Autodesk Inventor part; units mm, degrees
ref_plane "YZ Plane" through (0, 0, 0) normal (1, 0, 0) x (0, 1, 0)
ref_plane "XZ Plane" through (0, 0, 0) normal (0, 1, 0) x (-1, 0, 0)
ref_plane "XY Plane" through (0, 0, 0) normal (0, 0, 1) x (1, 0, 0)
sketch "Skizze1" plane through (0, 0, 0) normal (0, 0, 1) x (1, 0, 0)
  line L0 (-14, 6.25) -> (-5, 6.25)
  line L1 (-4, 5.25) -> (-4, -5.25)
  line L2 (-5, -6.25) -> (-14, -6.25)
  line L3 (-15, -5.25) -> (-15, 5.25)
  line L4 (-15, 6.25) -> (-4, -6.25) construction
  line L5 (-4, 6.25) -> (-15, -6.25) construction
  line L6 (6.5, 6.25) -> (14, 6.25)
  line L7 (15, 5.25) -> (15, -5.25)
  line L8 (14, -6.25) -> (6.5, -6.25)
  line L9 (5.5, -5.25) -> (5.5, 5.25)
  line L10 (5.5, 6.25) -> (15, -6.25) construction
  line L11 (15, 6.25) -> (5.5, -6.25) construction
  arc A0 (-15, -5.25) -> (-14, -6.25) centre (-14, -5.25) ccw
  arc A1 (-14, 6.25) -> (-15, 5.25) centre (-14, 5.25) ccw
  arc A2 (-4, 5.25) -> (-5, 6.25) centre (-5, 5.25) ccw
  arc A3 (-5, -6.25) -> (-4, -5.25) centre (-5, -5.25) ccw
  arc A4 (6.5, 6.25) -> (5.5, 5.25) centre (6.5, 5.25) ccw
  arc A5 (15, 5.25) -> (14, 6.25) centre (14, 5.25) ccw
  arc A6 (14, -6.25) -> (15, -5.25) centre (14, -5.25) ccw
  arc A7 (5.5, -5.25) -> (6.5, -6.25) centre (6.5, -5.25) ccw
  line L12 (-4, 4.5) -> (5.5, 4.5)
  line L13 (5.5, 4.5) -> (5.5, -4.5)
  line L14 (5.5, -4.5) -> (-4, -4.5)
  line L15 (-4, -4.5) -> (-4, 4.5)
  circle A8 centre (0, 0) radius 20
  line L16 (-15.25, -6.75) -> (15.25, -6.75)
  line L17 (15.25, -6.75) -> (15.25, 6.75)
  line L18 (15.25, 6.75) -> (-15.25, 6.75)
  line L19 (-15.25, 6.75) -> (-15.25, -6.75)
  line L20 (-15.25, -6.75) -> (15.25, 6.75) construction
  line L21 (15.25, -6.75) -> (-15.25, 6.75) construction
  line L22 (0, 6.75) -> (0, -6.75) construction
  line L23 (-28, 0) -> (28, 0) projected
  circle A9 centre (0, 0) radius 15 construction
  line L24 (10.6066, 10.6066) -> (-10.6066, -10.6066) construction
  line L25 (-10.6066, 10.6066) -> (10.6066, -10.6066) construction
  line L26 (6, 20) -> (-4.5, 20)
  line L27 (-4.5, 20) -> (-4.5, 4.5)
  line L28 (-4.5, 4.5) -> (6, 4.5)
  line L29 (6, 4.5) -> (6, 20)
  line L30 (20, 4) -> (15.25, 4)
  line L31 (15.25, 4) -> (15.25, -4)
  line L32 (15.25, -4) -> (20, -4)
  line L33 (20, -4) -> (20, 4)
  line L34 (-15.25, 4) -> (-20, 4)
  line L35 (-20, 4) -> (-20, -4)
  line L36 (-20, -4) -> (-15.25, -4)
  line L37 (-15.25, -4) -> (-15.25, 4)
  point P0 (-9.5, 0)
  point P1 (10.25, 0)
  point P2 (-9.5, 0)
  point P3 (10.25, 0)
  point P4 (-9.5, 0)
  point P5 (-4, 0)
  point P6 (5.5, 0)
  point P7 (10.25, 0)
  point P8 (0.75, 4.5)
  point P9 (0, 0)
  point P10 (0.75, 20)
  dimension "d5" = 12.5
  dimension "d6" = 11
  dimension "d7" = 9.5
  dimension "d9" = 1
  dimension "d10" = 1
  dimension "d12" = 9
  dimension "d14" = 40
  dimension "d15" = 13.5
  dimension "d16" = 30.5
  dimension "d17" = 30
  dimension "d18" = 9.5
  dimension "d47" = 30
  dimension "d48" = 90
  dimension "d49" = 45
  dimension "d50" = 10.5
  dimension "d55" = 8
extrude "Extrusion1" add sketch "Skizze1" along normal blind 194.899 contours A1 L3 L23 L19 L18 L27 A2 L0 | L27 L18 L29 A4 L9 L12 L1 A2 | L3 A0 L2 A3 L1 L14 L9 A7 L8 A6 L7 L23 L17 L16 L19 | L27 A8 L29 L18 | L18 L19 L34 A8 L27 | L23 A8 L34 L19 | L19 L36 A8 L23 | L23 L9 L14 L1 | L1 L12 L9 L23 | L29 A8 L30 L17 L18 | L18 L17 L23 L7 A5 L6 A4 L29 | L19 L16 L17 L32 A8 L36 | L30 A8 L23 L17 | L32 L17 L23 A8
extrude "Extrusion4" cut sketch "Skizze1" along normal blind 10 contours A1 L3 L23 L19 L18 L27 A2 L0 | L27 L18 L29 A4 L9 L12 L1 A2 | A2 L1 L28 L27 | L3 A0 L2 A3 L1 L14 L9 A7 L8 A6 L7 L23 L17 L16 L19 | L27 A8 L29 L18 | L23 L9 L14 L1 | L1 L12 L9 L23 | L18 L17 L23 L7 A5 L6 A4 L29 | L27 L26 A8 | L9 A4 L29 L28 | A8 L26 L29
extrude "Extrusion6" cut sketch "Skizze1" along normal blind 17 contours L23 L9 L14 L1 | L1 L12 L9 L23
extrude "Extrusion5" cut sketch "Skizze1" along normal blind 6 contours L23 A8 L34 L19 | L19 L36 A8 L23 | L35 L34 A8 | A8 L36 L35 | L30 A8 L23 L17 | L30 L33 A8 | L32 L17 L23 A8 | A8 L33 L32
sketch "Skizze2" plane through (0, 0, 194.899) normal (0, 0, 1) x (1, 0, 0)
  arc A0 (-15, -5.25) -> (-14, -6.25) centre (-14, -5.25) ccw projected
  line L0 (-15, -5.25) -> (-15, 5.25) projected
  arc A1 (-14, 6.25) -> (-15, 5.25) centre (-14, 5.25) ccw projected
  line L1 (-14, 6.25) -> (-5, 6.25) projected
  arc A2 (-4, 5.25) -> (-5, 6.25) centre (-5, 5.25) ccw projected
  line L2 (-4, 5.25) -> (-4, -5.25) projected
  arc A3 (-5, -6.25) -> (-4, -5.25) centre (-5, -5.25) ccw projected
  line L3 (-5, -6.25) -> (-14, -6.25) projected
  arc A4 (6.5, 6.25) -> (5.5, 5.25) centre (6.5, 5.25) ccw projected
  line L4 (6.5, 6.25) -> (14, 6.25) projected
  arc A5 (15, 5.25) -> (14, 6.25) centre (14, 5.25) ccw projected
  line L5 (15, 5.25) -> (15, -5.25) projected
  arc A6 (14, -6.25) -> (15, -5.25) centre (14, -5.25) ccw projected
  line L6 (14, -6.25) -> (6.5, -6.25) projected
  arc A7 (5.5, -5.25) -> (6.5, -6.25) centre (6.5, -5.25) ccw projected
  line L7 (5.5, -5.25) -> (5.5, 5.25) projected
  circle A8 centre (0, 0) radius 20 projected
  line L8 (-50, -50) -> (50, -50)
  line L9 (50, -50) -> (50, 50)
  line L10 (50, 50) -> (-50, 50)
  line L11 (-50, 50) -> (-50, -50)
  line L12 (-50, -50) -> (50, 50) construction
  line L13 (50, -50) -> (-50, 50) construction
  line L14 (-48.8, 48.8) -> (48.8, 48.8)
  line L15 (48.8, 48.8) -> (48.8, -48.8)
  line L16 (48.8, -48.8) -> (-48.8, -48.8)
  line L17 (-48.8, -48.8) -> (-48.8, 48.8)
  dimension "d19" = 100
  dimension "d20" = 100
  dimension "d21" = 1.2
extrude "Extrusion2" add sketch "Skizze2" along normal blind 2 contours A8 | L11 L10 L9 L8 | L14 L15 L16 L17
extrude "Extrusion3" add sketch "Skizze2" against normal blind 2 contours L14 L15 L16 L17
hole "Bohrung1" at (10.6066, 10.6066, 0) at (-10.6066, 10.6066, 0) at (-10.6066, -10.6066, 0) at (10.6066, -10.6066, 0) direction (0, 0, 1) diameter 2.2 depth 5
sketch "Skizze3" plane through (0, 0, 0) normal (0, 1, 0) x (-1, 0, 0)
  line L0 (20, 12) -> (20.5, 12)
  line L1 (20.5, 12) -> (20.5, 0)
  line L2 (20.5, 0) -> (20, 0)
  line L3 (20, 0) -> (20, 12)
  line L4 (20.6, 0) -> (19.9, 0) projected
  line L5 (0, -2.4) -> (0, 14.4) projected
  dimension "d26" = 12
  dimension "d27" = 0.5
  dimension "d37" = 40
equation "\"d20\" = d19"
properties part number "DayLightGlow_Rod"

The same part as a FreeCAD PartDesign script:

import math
import FreeCAD as App
import Part
import Sketcher

V = App.Vector


def add_polygon(sketch, points):
    """Adds a closed chain of lines whose ends are joined by coincident constraints."""
    first, n = sketch.GeometryCount, len(points)
    for a, b in zip(points, points[1:] + points[:1]):
        sketch.addGeometry(Part.LineSegment(App.Vector(*a, 0), App.Vector(*b, 0)), False)
    for i in range(n):
        sketch.addConstraint(Sketcher.Constraint("Coincident", first + i, 2, first + (i + 1) % n, 1))

doc = App.newDocument("Part")
body = doc.addObject("PartDesign::Body", "Body")

# Sketch on XY plane
sketch1 = body.newObject("Sketcher::SketchObject", "Sketch")
sketch1.AttachmentSupport = (doc.getObject("XY_Plane"), [""])
sketch1.MapMode = "FlatFace"
sketch1.addGeometry([
    Part.Circle(V(0, 0, 0), V(0, 0, 1), 20),  # 0
    Part.ArcOfCircle(Part.Circle(V(-14, 5.2, 0), V(0, 0, 1), 1), math.radians(90), math.radians(180)),  # 1
    Part.LineSegment(V(-14, 6.2, 0), V(-5, 6.2, 0)),  # 2
    Part.ArcOfCircle(Part.Circle(V(-5, 5.2, 0), V(0, 0, 1), 1), math.radians(0), math.radians(90)),  # 3
    Part.LineSegment(V(-4, 5.2, 0), V(-4, -5.2, 0)),  # 4
    Part.ArcOfCircle(Part.Circle(V(-5, -5.2, 0), V(0, 0, 1), 1), math.radians(-90), math.radians(0)),  # 5
    Part.LineSegment(V(-5, -6.2, 0), V(-14, -6.2, 0)),  # 6
    Part.ArcOfCircle(Part.Circle(V(-14, -5.2, 0), V(0, 0, 1), 1), math.radians(180), math.radians(270)),  # 7
    Part.LineSegment(V(-15, -5.2, 0), V(-15, 5.2, 0)),  # 8
    Part.LineSegment(V(5.5, -5.2, 0), V(5.5, 5.2, 0)),  # 9
    Part.ArcOfCircle(Part.Circle(V(6.5, 5.2, 0), V(0, 0, 1), 1), math.radians(90), math.radians(180)),  # 10
    Part.LineSegment(V(6.5, 6.2, 0), V(14, 6.2, 0)),  # 11
    Part.ArcOfCircle(Part.Circle(V(14, 5.2, 0), V(0, 0, 1), 1), math.radians(0), math.radians(90)),  # 12
    Part.LineSegment(V(15, 5.2, 0), V(15, -5.2, 0)),  # 13
    Part.ArcOfCircle(Part.Circle(V(14, -5.2, 0), V(0, 0, 1), 1), math.radians(-90), math.radians(0)),  # 14
    Part.LineSegment(V(14, -6.2, 0), V(6.5, -6.2, 0)),  # 15
    Part.ArcOfCircle(Part.Circle(V(6.5, -5.2, 0), V(0, 0, 1), 1), math.radians(180), math.radians(270)),  # 16
], False)
sketch1.addConstraint([
    Sketcher.Constraint("Tangent", 1, 1, 2, 1),
    Sketcher.Constraint("Tangent", 2, 2, 3, 2),
    Sketcher.Constraint("Tangent", 3, 1, 4, 1),
    Sketcher.Constraint("Tangent", 4, 2, 5, 2),
    Sketcher.Constraint("Tangent", 5, 1, 6, 1),
    Sketcher.Constraint("Tangent", 6, 2, 7, 2),
    Sketcher.Constraint("Tangent", 7, 1, 8, 1),
    Sketcher.Constraint("Tangent", 8, 2, 1, 2),
    Sketcher.Constraint("Tangent", 9, 2, 10, 2),
    Sketcher.Constraint("Tangent", 10, 1, 11, 1),
    Sketcher.Constraint("Tangent", 11, 2, 12, 2),
    Sketcher.Constraint("Tangent", 12, 1, 13, 1),
    Sketcher.Constraint("Tangent", 13, 2, 14, 2),
    Sketcher.Constraint("Tangent", 14, 1, 15, 1),
    Sketcher.Constraint("Tangent", 15, 2, 16, 2),
    Sketcher.Constraint("Tangent", 16, 1, 9, 1),
    Sketcher.Constraint("Horizontal", 2),
    Sketcher.Constraint("Vertical", 4),
    Sketcher.Constraint("Horizontal", 6),
    Sketcher.Constraint("Vertical", 8),
    Sketcher.Constraint("Vertical", 9),
    Sketcher.Constraint("Horizontal", 11),
    Sketcher.Constraint("Vertical", 13),
    Sketcher.Constraint("Horizontal", 15),
    Sketcher.Constraint("Coincident", 0, 3, -1, 1),
    Sketcher.Constraint("Equal", 1, 3),
    Sketcher.Constraint("Equal", 3, 5),
    Sketcher.Constraint("Equal", 5, 7),
    Sketcher.Constraint("Equal", 7, 10),
    Sketcher.Constraint("Equal", 10, 12),
    Sketcher.Constraint("Equal", 12, 14),
    Sketcher.Constraint("Equal", 14, 16),
    Sketcher.Constraint("Symmetric", 7, 3, 12, 3, -1, 1),
    Sketcher.Constraint("Horizontal", 3, 3, 10, 3),
    Sketcher.Constraint("Horizontal", 7, 3, 14, 3),
    Sketcher.Constraint("Diameter", 0, 40.0),
    Sketcher.Constraint("Radius", 1, 1.0),
    Sketcher.Constraint("DistanceX", 2, 1, 2, 2, 9.0),
    Sketcher.Constraint("DistanceY", 4, 2, 4, 1, 10.5),
    Sketcher.Constraint("DistanceX", 4, 2, 16, 3, 10.5),
    Sketcher.Constraint("DistanceX", 9, 2, 12, 1, 9.5),
])
pad1 = body.newObject("PartDesign::Pad", "Pad")
pad1.Profile = sketch1
pad1.Length = 194.899

# Sketch on XY plane
sketch2 = body.newObject("Sketcher::SketchObject", "Sketch001")
sketch2.AttachmentSupport = (doc.getObject("XY_Plane"), [""])
sketch2.MapMode = "FlatFace"
add_polygon(sketch2, [(-15.2, -6.8), (15.2, -6.8), (15.2, 6.8), (6, 6.8), (6, 20), (-4.5, 20), (-4.5, 6.8), (-15.2, 6.8)])  # lines 0-7
sketch2.addGeometry(Part.ArcOfCircle(Part.Circle(V(-14, 5.2, 0), V(0, 0, 1), 1), math.radians(90), math.radians(180)), False)  # 8
sketch2.addGeometry(Part.LineSegment(V(-14, 6.2, 0), V(-5, 6.2, 0)), False)  # 9
sketch2.addGeometry(Part.ArcOfCircle(Part.Circle(V(-5, 5.2, 0), V(0, 0, 1), 1), math.radians(60), math.radians(90)), False)  # 10
sketch2.addGeometry(Part.LineSegment(V(-4.5, 6.1, 0), V(-4.5, 4.5, 0)), False)  # 11
sketch2.addGeometry(Part.LineSegment(V(-4.5, 4.5, 0), V(-4, 4.5, 0)), False)  # 12
sketch2.addGeometry(Part.LineSegment(V(-4, 4.5, 0), V(-4, -5.2, 0)), False)  # 13
sketch2.addGeometry(Part.ArcOfCircle(Part.Circle(V(-5, -5.2, 0), V(0, 0, 1), 1), math.radians(-90), math.radians(0)), False)  # 14
sketch2.addGeometry(Part.LineSegment(V(-5, -6.2, 0), V(-14, -6.2, 0)), False)  # 15
sketch2.addGeometry(Part.ArcOfCircle(Part.Circle(V(-14, -5.2, 0), V(0, 0, 1), 1), math.radians(180), math.radians(270)), False)  # 16
sketch2.addGeometry(Part.LineSegment(V(-15, -5.2, 0), V(-15, 5.2, 0)), False)  # 17
sketch2.addGeometry(Part.LineSegment(V(5.5, -5.2, 0), V(5.5, 4.5, 0)), False)  # 18
sketch2.addGeometry(Part.LineSegment(V(5.5, 4.5, 0), V(6, 4.5, 0)), False)  # 19
sketch2.addGeometry(Part.LineSegment(V(6, 4.5, 0), V(6, 6.1, 0)), False)  # 20
sketch2.addGeometry(Part.ArcOfCircle(Part.Circle(V(6.5, 5.2, 0), V(0, 0, 1), 1), math.radians(90), math.radians(120)), False)  # 21
sketch2.addGeometry(Part.LineSegment(V(6.5, 6.2, 0), V(14, 6.2, 0)), False)  # 22
sketch2.addGeometry(Part.ArcOfCircle(Part.Circle(V(14, 5.2, 0), V(0, 0, 1), 1), math.radians(0), math.radians(90)), False)  # 23
sketch2.addGeometry(Part.LineSegment(V(15, 5.2, 0), V(15, -5.2, 0)), False)  # 24
sketch2.addGeometry(Part.ArcOfCircle(Part.Circle(V(14, -5.2, 0), V(0, 0, 1), 1), math.radians(-90), math.radians(0)), False)  # 25
sketch2.addGeometry(Part.LineSegment(V(14, -6.2, 0), V(6.5, -6.2, 0)), False)  # 26
sketch2.addGeometry(Part.ArcOfCircle(Part.Circle(V(6.5, -5.2, 0), V(0, 0, 1), 1), math.radians(180), math.radians(270)), False)  # 27
sketch2.addConstraint([
    Sketcher.Constraint("Tangent", 8, 1, 9, 1),
    Sketcher.Constraint("Tangent", 9, 2, 10, 2),
    Sketcher.Constraint("Coincident", 10, 1, 11, 1),
    Sketcher.Constraint("Coincident", 11, 2, 12, 1),
    Sketcher.Constraint("Coincident", 12, 2, 13, 1),
    Sketcher.Constraint("Tangent", 13, 2, 14, 2),
    Sketcher.Constraint("Tangent", 14, 1, 15, 1),
    Sketcher.Constraint("Tangent", 15, 2, 16, 2),
    Sketcher.Constraint("Tangent", 16, 1, 17, 1),
    Sketcher.Constraint("Tangent", 17, 2, 8, 2),
    Sketcher.Constraint("Coincident", 18, 2, 19, 1),
    Sketcher.Constraint("Coincident", 19, 2, 20, 1),
    Sketcher.Constraint("Coincident", 20, 2, 21, 2),
    Sketcher.Constraint("Tangent", 21, 1, 22, 1),
    Sketcher.Constraint("Tangent", 22, 2, 23, 2),
    Sketcher.Constraint("Tangent", 23, 1, 24, 1),
    Sketcher.Constraint("Tangent", 24, 2, 25, 2),
    Sketcher.Constraint("Tangent", 25, 1, 26, 1),
    Sketcher.Constraint("Tangent", 26, 2, 27, 2),
    Sketcher.Constraint("Tangent", 27, 1, 18, 1),
    Sketcher.Constraint("Horizontal", 0),
    Sketcher.Constraint("Vertical", 1),
    Sketcher.Constraint("Horizontal", 2),
    Sketcher.Constraint("Vertical", 3),
    Sketcher.Constraint("Horizontal", 4),
    Sketcher.Constraint("Vertical", 5),
    Sketcher.Constraint("Horizontal", 6),
    Sketcher.Constraint("Vertical", 7),
    Sketcher.Constraint("Horizontal", 9),
    Sketcher.Constraint("Vertical", 11),
    Sketcher.Constraint("Horizontal", 12),
    Sketcher.Constraint("Vertical", 13),
    Sketcher.Constraint("Horizontal", 15),
    Sketcher.Constraint("Vertical", 17),
    Sketcher.Constraint("Vertical", 18),
    Sketcher.Constraint("Horizontal", 19),
    Sketcher.Constraint("Vertical", 20),
    Sketcher.Constraint("Horizontal", 22),
    Sketcher.Constraint("Vertical", 24),
    Sketcher.Constraint("Horizontal", 26),
    Sketcher.Constraint("Equal", 8, 10),
    Sketcher.Constraint("Equal", 10, 14),
    Sketcher.Constraint("Equal", 14, 16),
    Sketcher.Constraint("Equal", 16, 21),
    Sketcher.Constraint("Equal", 21, 23),
    Sketcher.Constraint("Equal", 23, 25),
    Sketcher.Constraint("Equal", 25, 27),
    Sketcher.Constraint("Symmetric", 16, 3, 23, 3, -1, 1),
    Sketcher.Constraint("Symmetric", 0, 2, 6, 2, -1, 1),
    Sketcher.Constraint("Symmetric", 10, 3, 14, 3, -1),
    Sketcher.Constraint("Symmetric", 21, 3, 27, 3, -1),
    Sketcher.Constraint("Horizontal", 2, 2, 5, 2),
    Sketcher.Constraint("Horizontal", 12, 2, 18, 2),
    Sketcher.Constraint("Horizontal", 10, 1, 20, 2),
    Sketcher.Constraint("Vertical", 5, 2, 10, 1),
    Sketcher.Constraint("Vertical", 3, 2, 19, 2),
    Sketcher.Constraint("Equal", 4, 17),
    Sketcher.Constraint("Radius", 8, 1.0),
    Sketcher.Constraint("DistanceX", 9, 1, 9, 2, 9.0),
    Sketcher.Constraint("DistanceX", 0, 1, 0, 2, 30.5),
    Sketcher.Constraint("DistanceX", 4, 2, 4, 1, 10.5),
    Sketcher.Constraint("DistanceY", 1, 1, 1, 2, 13.5),
    Sketcher.Constraint("DistanceX", 2, 2, 23, 3, 8.0),
    Sketcher.Constraint("DistanceX", 10, 3, 2, 2, 11.0),
    Sketcher.Constraint("DistanceY", -1, 1, 3, 2, 20.0),
    Sketcher.Constraint("DistanceY", 13, 2, 13, 1, 9.75),
])
pocket1 = body.newObject("PartDesign::Pocket", "Pocket")
pocket1.Profile = sketch2
pocket1.Length = 10
pocket1.Reversed = True

# Sketch on XY plane
sketch3 = body.newObject("Sketcher::SketchObject", "Sketch002")
sketch3.AttachmentSupport = (doc.getObject("XY_Plane"), [""])
sketch3.MapMode = "FlatFace"
add_polygon(sketch3, [(6, -4), (6, 4), (-4, 4), (-4, -4)])  # lines 0-3
sketch3.addConstraint([
    Sketcher.Constraint("Vertical", 0),
    Sketcher.Constraint("Horizontal", 1),
    Sketcher.Constraint("Vertical", 2),
    Sketcher.Constraint("Horizontal", 3),
    Sketcher.Constraint("DistanceY", 0, 1, 0, 2, 9.0),
    Sketcher.Constraint("DistanceX", 1, 2, 1, 1, 9.5),
    Sketcher.Constraint("DistanceX", 1, 2, -1, 1, 4.0),
    Sketcher.Constraint("DistanceY", -1, 1, 0, 2, 4.5),
])
pocket2 = body.newObject("PartDesign::Pocket", "Pocket001")
pocket2.Profile = sketch3
pocket2.Length = 17
pocket2.Reversed = True

# Sketch on XY plane
sketch4 = body.newObject("Sketcher::SketchObject", "Sketch003")
sketch4.AttachmentSupport = (doc.getObject("XY_Plane"), [""])
sketch4.MapMode = "FlatFace"
add_polygon(sketch4, [(-15.2, 4), (-20, 4), (-20, -4), (-15.2, -4)])  # lines 0-3
add_polygon(sketch4, [(15.2, 4), (15.2, -4), (20, -4), (20, 4)])  # lines 4-7
sketch4.addConstraint([
    Sketcher.Constraint("Horizontal", 0),
    Sketcher.Constraint("Vertical", 1),
    Sketcher.Constraint("Horizontal", 2),
    Sketcher.Constraint("Vertical", 3),
    Sketcher.Constraint("Vertical", 4),
    Sketcher.Constraint("Horizontal", 5),
    Sketcher.Constraint("Vertical", 6),
    Sketcher.Constraint("Horizontal", 7),
    Sketcher.Constraint("Symmetric", 3, 2, 4, 2, -1, 1),
    Sketcher.Constraint("Symmetric", 1, 2, 6, 2, -1, 1),
    Sketcher.Constraint("Horizontal", 2, 2, 4, 2),
    Sketcher.Constraint("DistanceY", 1, 2, 1, 1, 8.0),
    Sketcher.Constraint("DistanceX", 1, 2, 5, 2, 40.0),
    Sketcher.Constraint("DistanceX", 2, 2, 4, 2, 30.5),
])
pocket3 = body.newObject("PartDesign::Pocket", "Pocket002")
pocket3.Profile = sketch4
pocket3.Length = 6
pocket3.Reversed = True

# Sketch on XY plane
sketch5 = body.newObject("Sketcher::SketchObject", "Sketch004")
sketch5.AttachmentSupport = (doc.getObject("XY_Plane"), [""])
sketch5.MapMode = "FlatFace"
sketch5.AttachmentOffset = App.Placement(V(0, 0, 194.899), App.Rotation())
add_polygon(sketch5, [(-50, 50), (-50, -50), (50, -50), (50, 50)])  # lines 0-3
sketch5.addGeometry(Part.ArcOfCircle(Part.Circle(V(-14, -5.2, 0), V(0, 0, 1), 1), math.radians(180), math.radians(270)), False)  # 4
sketch5.addGeometry(Part.LineSegment(V(-15, -5.2, 0), V(-15, 5.2, 0)), False)  # 5
sketch5.addGeometry(Part.ArcOfCircle(Part.Circle(V(-14, 5.2, 0), V(0, 0, 1), 1), math.radians(90), math.radians(180)), False)  # 6
sketch5.addGeometry(Part.LineSegment(V(-14, 6.2, 0), V(-5, 6.2, 0)), False)  # 7
sketch5.addGeometry(Part.ArcOfCircle(Part.Circle(V(-5, 5.2, 0), V(0, 0, 1), 1), math.radians(0), math.radians(90)), False)  # 8
sketch5.addGeometry(Part.LineSegment(V(-4, 5.2, 0), V(-4, -5.2, 0)), False)  # 9
sketch5.addGeometry(Part.ArcOfCircle(Part.Circle(V(-5, -5.2, 0), V(0, 0, 1), 1), math.radians(-90), math.radians(0)), False)  # 10
sketch5.addGeometry(Part.LineSegment(V(-5, -6.2, 0), V(-14, -6.2, 0)), False)  # 11
sketch5.addGeometry(Part.ArcOfCircle(Part.Circle(V(6.5, 5.2, 0), V(0, 0, 1), 1), math.radians(90), math.radians(180)), False)  # 12
sketch5.addGeometry(Part.LineSegment(V(6.5, 6.2, 0), V(14, 6.2, 0)), False)  # 13
sketch5.addGeometry(Part.ArcOfCircle(Part.Circle(V(14, 5.2, 0), V(0, 0, 1), 1), math.radians(0), math.radians(90)), False)  # 14
sketch5.addGeometry(Part.LineSegment(V(15, 5.2, 0), V(15, -5.2, 0)), False)  # 15
sketch5.addGeometry(Part.ArcOfCircle(Part.Circle(V(14, -5.2, 0), V(0, 0, 1), 1), math.radians(-90), math.radians(0)), False)  # 16
sketch5.addGeometry(Part.LineSegment(V(14, -6.2, 0), V(6.5, -6.2, 0)), False)  # 17
sketch5.addGeometry(Part.ArcOfCircle(Part.Circle(V(6.5, -5.2, 0), V(0, 0, 1), 1), math.radians(180), math.radians(270)), False)  # 18
sketch5.addGeometry(Part.LineSegment(V(5.5, -5.2, 0), V(5.5, 5.2, 0)), False)  # 19
sketch5.addConstraint([
    Sketcher.Constraint("Tangent", 4, 1, 5, 1),
    Sketcher.Constraint("Tangent", 5, 2, 6, 2),
    Sketcher.Constraint("Tangent", 6, 1, 7, 1),
    Sketcher.Constraint("Tangent", 7, 2, 8, 2),
    Sketcher.Constraint("Tangent", 8, 1, 9, 1),
    Sketcher.Constraint("Tangent", 9, 2, 10, 2),
    Sketcher.Constraint("Tangent", 10, 1, 11, 1),
    Sketcher.Constraint("Tangent", 11, 2, 4, 2),
    Sketcher.Constraint("Tangent", 12, 1, 13, 1),
    Sketcher.Constraint("Tangent", 13, 2, 14, 2),
    Sketcher.Constraint("Tangent", 14, 1, 15, 1),
    Sketcher.Constraint("Tangent", 15, 2, 16, 2),
    Sketcher.Constraint("Tangent", 16, 1, 17, 1),
    Sketcher.Constraint("Tangent", 17, 2, 18, 2),
    Sketcher.Constraint("Tangent", 18, 1, 19, 1),
    Sketcher.Constraint("Tangent", 19, 2, 12, 2),
    Sketcher.Constraint("Vertical", 0),
    Sketcher.Constraint("Horizontal", 1),
    Sketcher.Constraint("Vertical", 2),
    Sketcher.Constraint("Horizontal", 3),
    Sketcher.Constraint("Vertical", 5),
    Sketcher.Constraint("Horizontal", 7),
    Sketcher.Constraint("Vertical", 9),
    Sketcher.Constraint("Horizontal", 11),
    Sketcher.Constraint("Horizontal", 13),
    Sketcher.Constraint("Vertical", 15),
    Sketcher.Constraint("Horizontal", 17),
    Sketcher.Constraint("Vertical", 19),
    Sketcher.Constraint("Equal", 4, 6),
    Sketcher.Constraint("Equal", 6, 8),
    Sketcher.Constraint("Equal", 8, 10),
    Sketcher.Constraint("Equal", 10, 12),
    Sketcher.Constraint("Equal", 12, 14),
    Sketcher.Constraint("Equal", 14, 16),
    Sketcher.Constraint("Equal", 16, 18),
    Sketcher.Constraint("Symmetric", 4, 3, 14, 3, -1, 1),
    Sketcher.Constraint("Symmetric", 0, 2, 2, 2, -1, 1),
    Sketcher.Constraint("Horizontal", 8, 3, 12, 3),
    Sketcher.Constraint("Horizontal", 10, 3, 16, 3),
    Sketcher.Constraint("Equal", 3, 0),
    Sketcher.Constraint("DistanceX", 1, 1, 1, 2, 100.0),
    Sketcher.Constraint("Radius", 4, 1.0),
    Sketcher.Constraint("DistanceX", 7, 1, 7, 2, 9.0),
    Sketcher.Constraint("DistanceX", 13, 1, 13, 2, 7.5),
    Sketcher.Constraint("DistanceY", 5, 1, 5, 2, 10.5),
    Sketcher.Constraint("DistanceX", 4, 3, -1, 1, 14.0),
])
pad2 = body.newObject("PartDesign::Pad", "Pad001")
pad2.Profile = sketch5
pad2.Length = 2

# Sketch on XY plane
sketch6 = body.newObject("Sketcher::SketchObject", "Sketch005")
sketch6.AttachmentSupport = (doc.getObject("XY_Plane"), [""])
sketch6.MapMode = "FlatFace"
sketch6.AttachmentOffset = App.Placement(V(0, 0, 194.899), App.Rotation())
add_polygon(sketch6, [(49, 49), (-49, 49), (-49, -49), (49, -49)])  # lines 0-3
sketch6.addGeometry(Part.Circle(V(0, 0, 0), V(0, 0, 1), 20), False)  # 4
sketch6.addConstraint([
    Sketcher.Constraint("Horizontal", 0),
    Sketcher.Constraint("Vertical", 1),
    Sketcher.Constraint("Horizontal", 2),
    Sketcher.Constraint("Vertical", 3),
    Sketcher.Constraint("Coincident", 4, 3, -1, 1),
    Sketcher.Constraint("Symmetric", 0, 2, 2, 2, -1, 1),
    Sketcher.Constraint("Equal", 2, 1),
    Sketcher.Constraint("Diameter", 4, 40.0),
    Sketcher.Constraint("DistanceX", 0, 2, 0, 1, 97.6),
])
pad3 = body.newObject("PartDesign::Pad", "Pad002")
pad3.Profile = sketch6
pad3.Length = 2
pad3.Reversed = True

# Sketch on XY plane
sketch7 = body.newObject("Sketcher::SketchObject", "Sketch006")
sketch7.AttachmentSupport = (doc.getObject("XY_Plane"), [""])
sketch7.MapMode = "FlatFace"
sketch7.addGeometry([
    Part.Circle(V(10.6, 10.6, 0), V(0, 0, 1), 1.1),
    Part.Circle(V(-10.6, 10.6, 0), V(0, 0, 1), 1.1),
    Part.Circle(V(-10.6, -10.6, 0), V(0, 0, 1), 1.1),
    Part.Circle(V(10.6, -10.6, 0), V(0, 0, 1), 1.1),
], False)
sketch7.addConstraint([
    Sketcher.Constraint("Equal", 0, 1),
    Sketcher.Constraint("Equal", 1, 2),
    Sketcher.Constraint("Equal", 2, 3),
    Sketcher.Constraint("Symmetric", 0, 3, 2, 3, -1, 1),
    Sketcher.Constraint("Symmetric", 1, 3, 3, 3, -1, 1),
    Sketcher.Constraint("Symmetric", 0, 3, 1, 3, -2),
    Sketcher.Constraint("Diameter", 0, 2.2),
    Sketcher.Constraint("DistanceX", -1, 1, 0, 3, 10.6066),
    Sketcher.Constraint("DistanceY", -1, 1, 0, 3, 10.6066),
])
doc.recompute()
hole = body.newObject("PartDesign::Hole", "Hole")
hole.Profile = sketch7
hole.ThreadType = "None"
hole.Diameter = 2.2
hole.DepthType = "Dimension"
hole.Depth = 5
hole.DrillPoint = "Flat"
hole.Reversed = True

doc.recompute()
